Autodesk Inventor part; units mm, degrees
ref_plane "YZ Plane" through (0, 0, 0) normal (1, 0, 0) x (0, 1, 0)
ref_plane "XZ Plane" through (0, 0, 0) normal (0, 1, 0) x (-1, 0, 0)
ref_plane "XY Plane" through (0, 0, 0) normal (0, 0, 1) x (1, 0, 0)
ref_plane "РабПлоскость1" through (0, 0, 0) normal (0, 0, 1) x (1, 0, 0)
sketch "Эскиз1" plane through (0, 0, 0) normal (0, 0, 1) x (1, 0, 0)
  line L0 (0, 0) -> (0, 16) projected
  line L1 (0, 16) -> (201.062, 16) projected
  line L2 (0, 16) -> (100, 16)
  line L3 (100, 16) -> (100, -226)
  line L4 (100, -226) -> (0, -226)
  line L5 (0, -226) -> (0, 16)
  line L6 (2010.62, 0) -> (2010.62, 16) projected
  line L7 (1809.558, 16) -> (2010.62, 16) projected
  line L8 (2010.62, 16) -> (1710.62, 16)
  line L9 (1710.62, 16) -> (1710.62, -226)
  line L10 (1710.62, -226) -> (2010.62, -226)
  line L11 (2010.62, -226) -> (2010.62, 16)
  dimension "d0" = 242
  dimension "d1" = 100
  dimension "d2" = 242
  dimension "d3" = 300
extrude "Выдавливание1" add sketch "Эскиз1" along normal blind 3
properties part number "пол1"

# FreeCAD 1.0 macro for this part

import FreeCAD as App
import Part
import Sketcher

V = App.Vector
Q = App.Units.Quantity


def add_polygon(sketch, points):
    """Adds a closed chain of lines whose ends are joined by coincident constraints."""
    first, n = sketch.GeometryCount, len(points)
    for a, b in zip(points, points[1:] + points[:1]):
        sketch.addGeometry(Part.LineSegment(App.Vector(*a, 0), App.Vector(*b, 0)), False)
    for i in range(n):
        sketch.addConstraint(Sketcher.Constraint("Coincident", first + i, 2, first + (i + 1) % n, 1))

doc = App.newDocument("Part")
body = doc.addObject("PartDesign::Body", "Body")
body.AllowCompound = True

# Sketch on XY plane
sketch1 = body.newObject("Sketcher::SketchObject", "Sketch")
sketch1.AttachmentSupport = (doc.getObject("XY_Plane"), [""])
sketch1.MapMode = "FlatFace"
add_polygon(sketch1, [(0, 16), (0, -226), (100, -226), (100, 16)])  # lines 0-3
add_polygon(sketch1, [(2011, -226), (2011, 16), (1711, 16), (1711, -226)])  # lines 4-7
sketch1.addConstraint(Sketcher.Constraint("Vertical", 0))
sketch1.addConstraint(Sketcher.Constraint("Horizontal", 1))
sketch1.addConstraint(Sketcher.Constraint("Vertical", 2))
sketch1.addConstraint(Sketcher.Constraint("Horizontal", 3))
sketch1.addConstraint(Sketcher.Constraint("Vertical", 4))
sketch1.addConstraint(Sketcher.Constraint("Horizontal", 5))
sketch1.addConstraint(Sketcher.Constraint("Vertical", 6))
sketch1.addConstraint(Sketcher.Constraint("Horizontal", 7))
sketch1.addConstraint(Sketcher.Constraint("PointOnObject", 0, 2, -2))
sketch1.addConstraint(Sketcher.Constraint("Horizontal", 3, 2, 4, 2))
sketch1.addConstraint(Sketcher.Constraint("Horizontal", 1, 2, 6, 2))
sketch1.addConstraint(Sketcher.Constraint("DistanceX", 1, 1, 1, 2, Q("100 mm")))
sketch1.addConstraint(Sketcher.Constraint("DistanceX", 5, 2, 5, 1, Q("300 mm")))
sketch1.addConstraint(Sketcher.Constraint("DistanceY", 0, 2, 0, 1, Q("242 mm")))
sketch1.addConstraint(Sketcher.Constraint("DistanceY", 0, 2, -1, 1, Q("226 mm")))
sketch1.addConstraint(Sketcher.Constraint("DistanceX", -1, 1, 4, 2, Q("2010.62 mm")))
pad1 = body.newObject("PartDesign::Pad", "Pad")
pad1.Profile = sketch1
pad1.Length = 3

doc.recompute()
